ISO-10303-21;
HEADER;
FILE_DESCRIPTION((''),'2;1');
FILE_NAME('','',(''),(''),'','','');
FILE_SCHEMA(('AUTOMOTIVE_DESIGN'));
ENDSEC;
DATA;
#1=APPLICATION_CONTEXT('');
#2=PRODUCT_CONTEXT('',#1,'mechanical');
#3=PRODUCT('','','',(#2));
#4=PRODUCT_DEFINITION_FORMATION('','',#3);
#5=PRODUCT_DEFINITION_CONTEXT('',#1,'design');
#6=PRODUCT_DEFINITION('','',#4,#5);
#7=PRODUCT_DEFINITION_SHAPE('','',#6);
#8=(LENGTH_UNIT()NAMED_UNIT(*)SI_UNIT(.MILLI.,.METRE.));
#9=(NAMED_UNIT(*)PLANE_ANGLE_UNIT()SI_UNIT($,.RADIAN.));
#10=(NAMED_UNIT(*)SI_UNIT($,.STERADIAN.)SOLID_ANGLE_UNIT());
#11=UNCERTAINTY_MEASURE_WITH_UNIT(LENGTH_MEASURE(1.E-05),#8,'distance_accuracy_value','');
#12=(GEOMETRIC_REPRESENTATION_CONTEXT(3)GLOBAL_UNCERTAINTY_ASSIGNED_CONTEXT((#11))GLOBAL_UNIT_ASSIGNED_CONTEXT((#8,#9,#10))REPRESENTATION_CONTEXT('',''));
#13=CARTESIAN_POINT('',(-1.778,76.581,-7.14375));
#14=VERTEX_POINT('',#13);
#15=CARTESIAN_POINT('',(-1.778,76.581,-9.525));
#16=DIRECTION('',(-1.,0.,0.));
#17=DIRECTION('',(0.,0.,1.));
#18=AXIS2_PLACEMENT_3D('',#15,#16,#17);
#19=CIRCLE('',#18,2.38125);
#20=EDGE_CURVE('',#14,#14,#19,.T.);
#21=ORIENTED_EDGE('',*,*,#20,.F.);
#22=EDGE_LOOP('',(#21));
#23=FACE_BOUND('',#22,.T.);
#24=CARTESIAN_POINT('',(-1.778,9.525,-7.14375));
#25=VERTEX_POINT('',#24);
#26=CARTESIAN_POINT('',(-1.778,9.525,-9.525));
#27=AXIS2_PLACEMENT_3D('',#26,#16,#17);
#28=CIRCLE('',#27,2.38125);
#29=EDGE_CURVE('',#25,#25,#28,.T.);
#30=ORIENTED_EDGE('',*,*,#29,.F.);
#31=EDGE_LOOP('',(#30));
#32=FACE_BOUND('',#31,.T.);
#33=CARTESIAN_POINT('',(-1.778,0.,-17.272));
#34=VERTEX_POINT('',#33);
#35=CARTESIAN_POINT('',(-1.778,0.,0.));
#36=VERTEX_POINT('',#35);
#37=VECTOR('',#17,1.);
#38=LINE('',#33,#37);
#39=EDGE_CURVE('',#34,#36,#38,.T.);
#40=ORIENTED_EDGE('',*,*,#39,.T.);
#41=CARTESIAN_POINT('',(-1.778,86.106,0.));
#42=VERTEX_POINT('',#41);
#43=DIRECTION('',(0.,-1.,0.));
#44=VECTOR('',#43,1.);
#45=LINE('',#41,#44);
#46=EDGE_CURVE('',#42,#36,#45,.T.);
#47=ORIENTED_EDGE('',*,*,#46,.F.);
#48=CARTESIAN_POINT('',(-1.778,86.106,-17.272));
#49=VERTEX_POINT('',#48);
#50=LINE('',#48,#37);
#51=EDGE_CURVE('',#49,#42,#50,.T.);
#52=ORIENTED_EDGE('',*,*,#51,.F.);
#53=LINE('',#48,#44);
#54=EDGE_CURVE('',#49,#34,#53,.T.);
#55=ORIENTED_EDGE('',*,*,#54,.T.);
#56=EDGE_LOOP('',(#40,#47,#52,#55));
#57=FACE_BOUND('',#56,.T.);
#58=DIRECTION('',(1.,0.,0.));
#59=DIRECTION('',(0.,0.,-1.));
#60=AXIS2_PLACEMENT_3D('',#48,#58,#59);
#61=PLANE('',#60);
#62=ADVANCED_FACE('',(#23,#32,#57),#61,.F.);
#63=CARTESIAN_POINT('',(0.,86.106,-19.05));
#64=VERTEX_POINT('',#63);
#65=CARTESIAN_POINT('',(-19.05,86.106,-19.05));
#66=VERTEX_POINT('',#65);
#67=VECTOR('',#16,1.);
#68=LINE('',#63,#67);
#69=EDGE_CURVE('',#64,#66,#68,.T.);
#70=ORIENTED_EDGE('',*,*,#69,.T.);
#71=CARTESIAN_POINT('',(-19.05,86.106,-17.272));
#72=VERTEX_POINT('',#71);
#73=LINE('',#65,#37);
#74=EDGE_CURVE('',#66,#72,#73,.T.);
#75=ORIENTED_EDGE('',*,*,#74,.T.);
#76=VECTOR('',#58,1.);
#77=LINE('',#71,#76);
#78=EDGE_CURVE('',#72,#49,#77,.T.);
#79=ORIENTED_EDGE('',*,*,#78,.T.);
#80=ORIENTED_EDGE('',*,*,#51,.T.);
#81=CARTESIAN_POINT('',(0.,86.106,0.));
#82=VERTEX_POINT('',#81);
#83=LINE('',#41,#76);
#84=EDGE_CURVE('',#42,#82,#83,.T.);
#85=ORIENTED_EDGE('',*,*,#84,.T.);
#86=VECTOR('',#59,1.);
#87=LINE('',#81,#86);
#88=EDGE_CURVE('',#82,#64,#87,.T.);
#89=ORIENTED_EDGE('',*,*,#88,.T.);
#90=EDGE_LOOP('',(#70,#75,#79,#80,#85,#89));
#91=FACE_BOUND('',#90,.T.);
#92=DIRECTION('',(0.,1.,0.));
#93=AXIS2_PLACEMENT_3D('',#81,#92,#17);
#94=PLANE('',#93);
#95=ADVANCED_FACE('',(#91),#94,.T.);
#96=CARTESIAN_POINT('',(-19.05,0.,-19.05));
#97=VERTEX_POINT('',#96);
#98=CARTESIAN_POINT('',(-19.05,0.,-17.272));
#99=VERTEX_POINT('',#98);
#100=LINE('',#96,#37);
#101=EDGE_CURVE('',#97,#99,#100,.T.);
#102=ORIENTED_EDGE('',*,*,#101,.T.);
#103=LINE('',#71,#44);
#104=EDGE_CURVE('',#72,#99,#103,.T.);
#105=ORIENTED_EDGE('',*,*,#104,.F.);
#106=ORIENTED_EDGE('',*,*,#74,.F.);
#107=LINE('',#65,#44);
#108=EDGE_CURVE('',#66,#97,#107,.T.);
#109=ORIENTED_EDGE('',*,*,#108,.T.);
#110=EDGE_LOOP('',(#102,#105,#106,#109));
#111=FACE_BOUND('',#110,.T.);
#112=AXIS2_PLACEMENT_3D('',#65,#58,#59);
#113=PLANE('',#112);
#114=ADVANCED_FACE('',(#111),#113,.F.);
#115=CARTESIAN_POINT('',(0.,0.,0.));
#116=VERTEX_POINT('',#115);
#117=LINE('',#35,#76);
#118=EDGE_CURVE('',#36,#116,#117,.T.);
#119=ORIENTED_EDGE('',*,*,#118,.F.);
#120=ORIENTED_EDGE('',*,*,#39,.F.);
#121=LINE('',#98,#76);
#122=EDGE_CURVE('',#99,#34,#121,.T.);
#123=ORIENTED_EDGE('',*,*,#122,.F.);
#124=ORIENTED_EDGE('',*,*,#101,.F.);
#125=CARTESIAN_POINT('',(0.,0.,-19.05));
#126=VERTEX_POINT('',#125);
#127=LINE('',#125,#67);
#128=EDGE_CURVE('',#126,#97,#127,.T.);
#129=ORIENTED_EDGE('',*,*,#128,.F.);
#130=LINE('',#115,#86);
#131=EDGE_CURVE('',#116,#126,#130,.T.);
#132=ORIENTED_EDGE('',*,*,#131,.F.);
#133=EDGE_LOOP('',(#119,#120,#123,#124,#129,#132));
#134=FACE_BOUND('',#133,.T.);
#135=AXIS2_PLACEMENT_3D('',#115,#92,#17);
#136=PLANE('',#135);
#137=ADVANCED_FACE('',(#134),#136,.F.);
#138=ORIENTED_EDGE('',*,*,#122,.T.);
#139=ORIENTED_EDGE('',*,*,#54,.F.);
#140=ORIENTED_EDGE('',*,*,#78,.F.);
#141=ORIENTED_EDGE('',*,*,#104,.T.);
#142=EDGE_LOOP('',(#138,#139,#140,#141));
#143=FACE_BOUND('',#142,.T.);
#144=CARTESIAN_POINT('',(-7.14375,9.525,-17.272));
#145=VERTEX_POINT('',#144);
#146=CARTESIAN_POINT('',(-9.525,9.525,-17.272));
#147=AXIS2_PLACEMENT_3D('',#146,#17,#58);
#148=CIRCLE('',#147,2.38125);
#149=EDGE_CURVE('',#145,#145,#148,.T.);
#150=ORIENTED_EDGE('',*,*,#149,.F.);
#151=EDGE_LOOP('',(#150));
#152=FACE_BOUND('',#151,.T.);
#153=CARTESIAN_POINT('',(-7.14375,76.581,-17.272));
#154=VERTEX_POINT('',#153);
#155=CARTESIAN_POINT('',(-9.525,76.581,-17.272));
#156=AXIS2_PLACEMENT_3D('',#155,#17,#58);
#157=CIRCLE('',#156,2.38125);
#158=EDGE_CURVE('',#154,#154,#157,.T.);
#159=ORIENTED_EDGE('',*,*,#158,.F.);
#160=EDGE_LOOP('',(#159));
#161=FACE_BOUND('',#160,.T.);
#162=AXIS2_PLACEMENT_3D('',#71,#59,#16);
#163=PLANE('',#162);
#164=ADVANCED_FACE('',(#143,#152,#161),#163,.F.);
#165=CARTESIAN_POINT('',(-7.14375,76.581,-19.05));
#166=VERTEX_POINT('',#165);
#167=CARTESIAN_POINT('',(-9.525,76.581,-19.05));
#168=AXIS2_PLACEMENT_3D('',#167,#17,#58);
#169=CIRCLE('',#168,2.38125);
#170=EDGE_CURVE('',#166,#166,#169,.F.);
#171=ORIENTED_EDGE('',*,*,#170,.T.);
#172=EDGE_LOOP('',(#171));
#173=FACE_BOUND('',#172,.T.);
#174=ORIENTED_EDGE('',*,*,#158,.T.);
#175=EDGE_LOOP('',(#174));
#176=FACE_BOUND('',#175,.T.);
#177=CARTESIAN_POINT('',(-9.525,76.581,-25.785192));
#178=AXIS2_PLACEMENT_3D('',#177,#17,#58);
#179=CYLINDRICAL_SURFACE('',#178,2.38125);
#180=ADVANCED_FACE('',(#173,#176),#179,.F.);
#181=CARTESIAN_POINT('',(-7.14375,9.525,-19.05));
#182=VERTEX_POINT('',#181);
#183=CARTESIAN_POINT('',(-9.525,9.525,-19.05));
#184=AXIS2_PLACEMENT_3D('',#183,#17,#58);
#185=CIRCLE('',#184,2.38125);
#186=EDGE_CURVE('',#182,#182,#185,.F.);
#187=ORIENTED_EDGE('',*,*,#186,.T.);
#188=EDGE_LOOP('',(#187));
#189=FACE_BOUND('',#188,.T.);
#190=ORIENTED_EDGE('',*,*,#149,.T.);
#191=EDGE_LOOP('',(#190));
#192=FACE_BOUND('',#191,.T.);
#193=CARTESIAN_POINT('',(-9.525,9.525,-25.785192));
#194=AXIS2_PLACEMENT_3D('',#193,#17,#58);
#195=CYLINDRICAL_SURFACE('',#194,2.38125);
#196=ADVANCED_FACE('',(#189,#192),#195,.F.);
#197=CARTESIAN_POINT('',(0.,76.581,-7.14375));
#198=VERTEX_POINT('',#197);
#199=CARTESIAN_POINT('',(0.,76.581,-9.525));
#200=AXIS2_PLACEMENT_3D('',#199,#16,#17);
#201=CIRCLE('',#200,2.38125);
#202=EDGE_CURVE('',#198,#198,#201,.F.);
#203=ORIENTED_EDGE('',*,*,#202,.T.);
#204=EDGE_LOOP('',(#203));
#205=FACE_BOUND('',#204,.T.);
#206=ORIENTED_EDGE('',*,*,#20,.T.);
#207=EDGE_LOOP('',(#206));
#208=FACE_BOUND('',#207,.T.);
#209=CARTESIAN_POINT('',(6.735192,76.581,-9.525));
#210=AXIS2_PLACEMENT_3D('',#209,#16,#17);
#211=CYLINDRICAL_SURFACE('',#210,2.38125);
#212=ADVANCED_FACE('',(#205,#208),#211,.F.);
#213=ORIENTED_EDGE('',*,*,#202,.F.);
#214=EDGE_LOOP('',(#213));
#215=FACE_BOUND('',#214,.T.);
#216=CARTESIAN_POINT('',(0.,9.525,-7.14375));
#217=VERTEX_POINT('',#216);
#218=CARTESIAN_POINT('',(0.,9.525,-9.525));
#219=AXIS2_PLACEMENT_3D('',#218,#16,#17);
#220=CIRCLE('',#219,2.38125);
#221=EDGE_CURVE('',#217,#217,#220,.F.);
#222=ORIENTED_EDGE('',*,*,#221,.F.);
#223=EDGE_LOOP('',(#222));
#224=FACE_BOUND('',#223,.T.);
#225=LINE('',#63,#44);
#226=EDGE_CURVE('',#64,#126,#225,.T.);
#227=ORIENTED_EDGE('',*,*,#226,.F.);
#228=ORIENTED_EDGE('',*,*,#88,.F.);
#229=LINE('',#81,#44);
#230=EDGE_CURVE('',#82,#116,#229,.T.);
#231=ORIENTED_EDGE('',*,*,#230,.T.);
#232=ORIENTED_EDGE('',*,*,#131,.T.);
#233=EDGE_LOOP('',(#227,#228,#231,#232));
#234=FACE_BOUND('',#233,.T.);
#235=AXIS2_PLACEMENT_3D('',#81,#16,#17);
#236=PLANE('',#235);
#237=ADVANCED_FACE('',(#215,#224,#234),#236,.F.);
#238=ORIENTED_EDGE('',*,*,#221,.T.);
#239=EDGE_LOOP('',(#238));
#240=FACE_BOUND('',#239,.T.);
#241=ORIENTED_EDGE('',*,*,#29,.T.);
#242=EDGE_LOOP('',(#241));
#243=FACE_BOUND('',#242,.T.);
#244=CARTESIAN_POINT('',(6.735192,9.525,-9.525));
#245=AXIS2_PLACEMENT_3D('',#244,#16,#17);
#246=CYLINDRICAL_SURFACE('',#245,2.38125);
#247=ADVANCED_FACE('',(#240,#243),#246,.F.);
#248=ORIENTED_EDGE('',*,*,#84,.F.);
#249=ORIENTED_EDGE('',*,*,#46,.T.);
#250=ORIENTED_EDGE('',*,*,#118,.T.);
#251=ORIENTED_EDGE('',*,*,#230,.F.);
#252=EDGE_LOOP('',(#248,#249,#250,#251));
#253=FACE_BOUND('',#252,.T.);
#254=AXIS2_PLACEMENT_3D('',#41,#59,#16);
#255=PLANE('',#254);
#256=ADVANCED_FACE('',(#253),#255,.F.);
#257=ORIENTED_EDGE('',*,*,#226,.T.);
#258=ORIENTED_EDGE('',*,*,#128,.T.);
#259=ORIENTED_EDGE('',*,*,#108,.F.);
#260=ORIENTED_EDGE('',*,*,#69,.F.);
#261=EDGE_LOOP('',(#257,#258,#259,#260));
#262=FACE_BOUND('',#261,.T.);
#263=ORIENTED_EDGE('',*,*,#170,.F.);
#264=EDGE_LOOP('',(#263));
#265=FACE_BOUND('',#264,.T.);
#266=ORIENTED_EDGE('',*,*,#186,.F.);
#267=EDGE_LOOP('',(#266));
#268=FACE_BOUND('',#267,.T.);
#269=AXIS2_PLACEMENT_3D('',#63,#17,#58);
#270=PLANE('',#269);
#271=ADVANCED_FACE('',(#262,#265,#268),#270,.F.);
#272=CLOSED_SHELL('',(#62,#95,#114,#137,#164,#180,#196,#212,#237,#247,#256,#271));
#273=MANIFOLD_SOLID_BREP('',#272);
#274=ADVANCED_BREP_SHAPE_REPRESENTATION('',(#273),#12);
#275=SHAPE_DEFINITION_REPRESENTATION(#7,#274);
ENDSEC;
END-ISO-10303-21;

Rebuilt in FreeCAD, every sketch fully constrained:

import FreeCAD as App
import Part
import Sketcher

V = App.Vector
Q = App.Units.Quantity

doc = App.newDocument("Part")
body = doc.addObject("PartDesign::Body", "Body")

sketch1 = body.newObject("Sketcher::SketchObject", "Sketch")
sketch1.AttachmentSupport = (doc.getObject("XZ_Plane"), [""])
sketch1.MapMode = "FlatFace"
sketch1.addGeometry(Part.LineSegment(V(0, 0, 0), V(0, -19.05, 0)), False)
sketch1.addGeometry(Part.LineSegment(V(0, -19.05, 0), V(-19.05, -19.05, 0)), False)
sketch1.addGeometry(Part.LineSegment(V(-19.05, -19.05, 0), V(-19.05, -17.272, 0)), False)
sketch1.addGeometry(Part.LineSegment(V(-19.05, -17.272, 0), V(-1.778, -17.272, 0)), False)
sketch1.addGeometry(Part.LineSegment(V(-1.778, -17.272, 0), V(-1.778, 0, 0)), False)
sketch1.addGeometry(Part.LineSegment(V(-1.778, 0, 0), V(0, 0, 0)), False)
sketch1.addConstraint(Sketcher.Constraint("Coincident", 0, 2, 1, 1))
sketch1.addConstraint(Sketcher.Constraint("Coincident", 1, 2, 2, 1))
sketch1.addConstraint(Sketcher.Constraint("Coincident", 2, 2, 3, 1))
sketch1.addConstraint(Sketcher.Constraint("Coincident", 3, 2, 4, 1))
sketch1.addConstraint(Sketcher.Constraint("Coincident", 4, 2, 5, 1))
sketch1.addConstraint(Sketcher.Constraint("Coincident", 5, 2, 0, 1))
sketch1.addConstraint(Sketcher.Constraint("Vertical", 0))
sketch1.addConstraint(Sketcher.Constraint("Horizontal", 1))
sketch1.addConstraint(Sketcher.Constraint("Vertical", 2))
sketch1.addConstraint(Sketcher.Constraint("Horizontal", 3))
sketch1.addConstraint(Sketcher.Constraint("Vertical", 4))
sketch1.addConstraint(Sketcher.Constraint("Horizontal", 5))
sketch1.addConstraint(Sketcher.Constraint("Coincident", 5, 2, -1, 1))
sketch1.addConstraint(Sketcher.Constraint("Equal", 1, 0))
sketch1.addConstraint(Sketcher.Constraint("Equal", 5, 2))
sketch1.addConstraint(Sketcher.Constraint("DistanceX", 1, 2, 1, 1, Q("0.75 in")))
sketch1.addConstraint(Sketcher.Constraint("DistanceX", 3, 1, 3, 2, Q("0.68 in")))
pad1 = body.newObject("PartDesign::Pad", "Pad")
pad1.Profile = sketch1
pad1.Length = Q("3.39 in")
pad1.Reversed = True

sketch2 = body.newObject("Sketcher::SketchObject", "Sketch001")
sketch2.AttachmentSupport = (doc.getObject("YZ_Plane"), [""])
sketch2.MapMode = "FlatFace"
sketch2.AttachmentOffset = App.Placement(V(0, 0, -0.07 * 25.4), App.Rotation())
sketch2.addGeometry(Part.Circle(V(76.581, -9.525, 0), V(0, 0, 1), 2.38125), False)
sketch2.addGeometry(Part.Circle(V(9.525, -9.525, 0), V(0, 0, 1), 2.38125), False)
sketch2.addConstraint(Sketcher.Constraint("Equal", 0, 1))
sketch2.addConstraint(Sketcher.Constraint("Horizontal", 0, 3, 1, 3))
sketch2.addConstraint(Sketcher.Constraint("Diameter", 0, Q("0.1875 in")))
sketch2.addConstraint(Sketcher.Constraint("DistanceX", 1, 3, 0, 3, Q("2.64 in")))
sketch2.addConstraint(Sketcher.Constraint("DistanceX", -1, 1, 0, 3, Q("3.015 in")))
sketch2.addConstraint(Sketcher.Constraint("DistanceY", 0, 3, -1, 1, Q("0.375 in")))
pocket1 = body.newObject("PartDesign::Pocket", "Pocket")
pocket1.Profile = sketch2
pocket1.Length = Q("0.07 in")
pocket1.Reversed = True

sketch3 = body.newObject("Sketcher::SketchObject", "Sketch002")
sketch3.AttachmentSupport = (doc.getObject("XY_Plane"), [""])
sketch3.MapMode = "FlatFace"
sketch3.AttachmentOffset = App.Placement(V(0, 0, -0.68 * 25.4), App.Rotation())
sketch3.addGeometry(Part.Circle(V(-9.525, 9.525, 0), V(0, 0, 1), 2.38125), False)
sketch3.addGeometry(Part.Circle(V(-9.525, 76.581, 0), V(0, 0, 1), 2.38125), False)
sketch3.addConstraint(Sketcher.Constraint("Equal", 0, 1))
sketch3.addConstraint(Sketcher.Constraint("Vertical", 0, 3, 1, 3))
sketch3.addConstraint(Sketcher.Constraint("Diameter", 0, Q("0.1875 in")))
sketch3.addConstraint(Sketcher.Constraint("DistanceY", 0, 3, 1, 3, Q("2.64 in")))
sketch3.addConstraint(Sketcher.Constraint("DistanceX", 0, 3, -1, 1, Q("0.375 in")))
sketch3.addConstraint(Sketcher.Constraint("DistanceY", -1, 1, 0, 3, Q("0.375 in")))
pocket2 = body.newObject("PartDesign::Pocket", "Pocket001")
pocket2.Profile = sketch3
pocket2.Length = Q("0.07 in")

doc.recompute()
